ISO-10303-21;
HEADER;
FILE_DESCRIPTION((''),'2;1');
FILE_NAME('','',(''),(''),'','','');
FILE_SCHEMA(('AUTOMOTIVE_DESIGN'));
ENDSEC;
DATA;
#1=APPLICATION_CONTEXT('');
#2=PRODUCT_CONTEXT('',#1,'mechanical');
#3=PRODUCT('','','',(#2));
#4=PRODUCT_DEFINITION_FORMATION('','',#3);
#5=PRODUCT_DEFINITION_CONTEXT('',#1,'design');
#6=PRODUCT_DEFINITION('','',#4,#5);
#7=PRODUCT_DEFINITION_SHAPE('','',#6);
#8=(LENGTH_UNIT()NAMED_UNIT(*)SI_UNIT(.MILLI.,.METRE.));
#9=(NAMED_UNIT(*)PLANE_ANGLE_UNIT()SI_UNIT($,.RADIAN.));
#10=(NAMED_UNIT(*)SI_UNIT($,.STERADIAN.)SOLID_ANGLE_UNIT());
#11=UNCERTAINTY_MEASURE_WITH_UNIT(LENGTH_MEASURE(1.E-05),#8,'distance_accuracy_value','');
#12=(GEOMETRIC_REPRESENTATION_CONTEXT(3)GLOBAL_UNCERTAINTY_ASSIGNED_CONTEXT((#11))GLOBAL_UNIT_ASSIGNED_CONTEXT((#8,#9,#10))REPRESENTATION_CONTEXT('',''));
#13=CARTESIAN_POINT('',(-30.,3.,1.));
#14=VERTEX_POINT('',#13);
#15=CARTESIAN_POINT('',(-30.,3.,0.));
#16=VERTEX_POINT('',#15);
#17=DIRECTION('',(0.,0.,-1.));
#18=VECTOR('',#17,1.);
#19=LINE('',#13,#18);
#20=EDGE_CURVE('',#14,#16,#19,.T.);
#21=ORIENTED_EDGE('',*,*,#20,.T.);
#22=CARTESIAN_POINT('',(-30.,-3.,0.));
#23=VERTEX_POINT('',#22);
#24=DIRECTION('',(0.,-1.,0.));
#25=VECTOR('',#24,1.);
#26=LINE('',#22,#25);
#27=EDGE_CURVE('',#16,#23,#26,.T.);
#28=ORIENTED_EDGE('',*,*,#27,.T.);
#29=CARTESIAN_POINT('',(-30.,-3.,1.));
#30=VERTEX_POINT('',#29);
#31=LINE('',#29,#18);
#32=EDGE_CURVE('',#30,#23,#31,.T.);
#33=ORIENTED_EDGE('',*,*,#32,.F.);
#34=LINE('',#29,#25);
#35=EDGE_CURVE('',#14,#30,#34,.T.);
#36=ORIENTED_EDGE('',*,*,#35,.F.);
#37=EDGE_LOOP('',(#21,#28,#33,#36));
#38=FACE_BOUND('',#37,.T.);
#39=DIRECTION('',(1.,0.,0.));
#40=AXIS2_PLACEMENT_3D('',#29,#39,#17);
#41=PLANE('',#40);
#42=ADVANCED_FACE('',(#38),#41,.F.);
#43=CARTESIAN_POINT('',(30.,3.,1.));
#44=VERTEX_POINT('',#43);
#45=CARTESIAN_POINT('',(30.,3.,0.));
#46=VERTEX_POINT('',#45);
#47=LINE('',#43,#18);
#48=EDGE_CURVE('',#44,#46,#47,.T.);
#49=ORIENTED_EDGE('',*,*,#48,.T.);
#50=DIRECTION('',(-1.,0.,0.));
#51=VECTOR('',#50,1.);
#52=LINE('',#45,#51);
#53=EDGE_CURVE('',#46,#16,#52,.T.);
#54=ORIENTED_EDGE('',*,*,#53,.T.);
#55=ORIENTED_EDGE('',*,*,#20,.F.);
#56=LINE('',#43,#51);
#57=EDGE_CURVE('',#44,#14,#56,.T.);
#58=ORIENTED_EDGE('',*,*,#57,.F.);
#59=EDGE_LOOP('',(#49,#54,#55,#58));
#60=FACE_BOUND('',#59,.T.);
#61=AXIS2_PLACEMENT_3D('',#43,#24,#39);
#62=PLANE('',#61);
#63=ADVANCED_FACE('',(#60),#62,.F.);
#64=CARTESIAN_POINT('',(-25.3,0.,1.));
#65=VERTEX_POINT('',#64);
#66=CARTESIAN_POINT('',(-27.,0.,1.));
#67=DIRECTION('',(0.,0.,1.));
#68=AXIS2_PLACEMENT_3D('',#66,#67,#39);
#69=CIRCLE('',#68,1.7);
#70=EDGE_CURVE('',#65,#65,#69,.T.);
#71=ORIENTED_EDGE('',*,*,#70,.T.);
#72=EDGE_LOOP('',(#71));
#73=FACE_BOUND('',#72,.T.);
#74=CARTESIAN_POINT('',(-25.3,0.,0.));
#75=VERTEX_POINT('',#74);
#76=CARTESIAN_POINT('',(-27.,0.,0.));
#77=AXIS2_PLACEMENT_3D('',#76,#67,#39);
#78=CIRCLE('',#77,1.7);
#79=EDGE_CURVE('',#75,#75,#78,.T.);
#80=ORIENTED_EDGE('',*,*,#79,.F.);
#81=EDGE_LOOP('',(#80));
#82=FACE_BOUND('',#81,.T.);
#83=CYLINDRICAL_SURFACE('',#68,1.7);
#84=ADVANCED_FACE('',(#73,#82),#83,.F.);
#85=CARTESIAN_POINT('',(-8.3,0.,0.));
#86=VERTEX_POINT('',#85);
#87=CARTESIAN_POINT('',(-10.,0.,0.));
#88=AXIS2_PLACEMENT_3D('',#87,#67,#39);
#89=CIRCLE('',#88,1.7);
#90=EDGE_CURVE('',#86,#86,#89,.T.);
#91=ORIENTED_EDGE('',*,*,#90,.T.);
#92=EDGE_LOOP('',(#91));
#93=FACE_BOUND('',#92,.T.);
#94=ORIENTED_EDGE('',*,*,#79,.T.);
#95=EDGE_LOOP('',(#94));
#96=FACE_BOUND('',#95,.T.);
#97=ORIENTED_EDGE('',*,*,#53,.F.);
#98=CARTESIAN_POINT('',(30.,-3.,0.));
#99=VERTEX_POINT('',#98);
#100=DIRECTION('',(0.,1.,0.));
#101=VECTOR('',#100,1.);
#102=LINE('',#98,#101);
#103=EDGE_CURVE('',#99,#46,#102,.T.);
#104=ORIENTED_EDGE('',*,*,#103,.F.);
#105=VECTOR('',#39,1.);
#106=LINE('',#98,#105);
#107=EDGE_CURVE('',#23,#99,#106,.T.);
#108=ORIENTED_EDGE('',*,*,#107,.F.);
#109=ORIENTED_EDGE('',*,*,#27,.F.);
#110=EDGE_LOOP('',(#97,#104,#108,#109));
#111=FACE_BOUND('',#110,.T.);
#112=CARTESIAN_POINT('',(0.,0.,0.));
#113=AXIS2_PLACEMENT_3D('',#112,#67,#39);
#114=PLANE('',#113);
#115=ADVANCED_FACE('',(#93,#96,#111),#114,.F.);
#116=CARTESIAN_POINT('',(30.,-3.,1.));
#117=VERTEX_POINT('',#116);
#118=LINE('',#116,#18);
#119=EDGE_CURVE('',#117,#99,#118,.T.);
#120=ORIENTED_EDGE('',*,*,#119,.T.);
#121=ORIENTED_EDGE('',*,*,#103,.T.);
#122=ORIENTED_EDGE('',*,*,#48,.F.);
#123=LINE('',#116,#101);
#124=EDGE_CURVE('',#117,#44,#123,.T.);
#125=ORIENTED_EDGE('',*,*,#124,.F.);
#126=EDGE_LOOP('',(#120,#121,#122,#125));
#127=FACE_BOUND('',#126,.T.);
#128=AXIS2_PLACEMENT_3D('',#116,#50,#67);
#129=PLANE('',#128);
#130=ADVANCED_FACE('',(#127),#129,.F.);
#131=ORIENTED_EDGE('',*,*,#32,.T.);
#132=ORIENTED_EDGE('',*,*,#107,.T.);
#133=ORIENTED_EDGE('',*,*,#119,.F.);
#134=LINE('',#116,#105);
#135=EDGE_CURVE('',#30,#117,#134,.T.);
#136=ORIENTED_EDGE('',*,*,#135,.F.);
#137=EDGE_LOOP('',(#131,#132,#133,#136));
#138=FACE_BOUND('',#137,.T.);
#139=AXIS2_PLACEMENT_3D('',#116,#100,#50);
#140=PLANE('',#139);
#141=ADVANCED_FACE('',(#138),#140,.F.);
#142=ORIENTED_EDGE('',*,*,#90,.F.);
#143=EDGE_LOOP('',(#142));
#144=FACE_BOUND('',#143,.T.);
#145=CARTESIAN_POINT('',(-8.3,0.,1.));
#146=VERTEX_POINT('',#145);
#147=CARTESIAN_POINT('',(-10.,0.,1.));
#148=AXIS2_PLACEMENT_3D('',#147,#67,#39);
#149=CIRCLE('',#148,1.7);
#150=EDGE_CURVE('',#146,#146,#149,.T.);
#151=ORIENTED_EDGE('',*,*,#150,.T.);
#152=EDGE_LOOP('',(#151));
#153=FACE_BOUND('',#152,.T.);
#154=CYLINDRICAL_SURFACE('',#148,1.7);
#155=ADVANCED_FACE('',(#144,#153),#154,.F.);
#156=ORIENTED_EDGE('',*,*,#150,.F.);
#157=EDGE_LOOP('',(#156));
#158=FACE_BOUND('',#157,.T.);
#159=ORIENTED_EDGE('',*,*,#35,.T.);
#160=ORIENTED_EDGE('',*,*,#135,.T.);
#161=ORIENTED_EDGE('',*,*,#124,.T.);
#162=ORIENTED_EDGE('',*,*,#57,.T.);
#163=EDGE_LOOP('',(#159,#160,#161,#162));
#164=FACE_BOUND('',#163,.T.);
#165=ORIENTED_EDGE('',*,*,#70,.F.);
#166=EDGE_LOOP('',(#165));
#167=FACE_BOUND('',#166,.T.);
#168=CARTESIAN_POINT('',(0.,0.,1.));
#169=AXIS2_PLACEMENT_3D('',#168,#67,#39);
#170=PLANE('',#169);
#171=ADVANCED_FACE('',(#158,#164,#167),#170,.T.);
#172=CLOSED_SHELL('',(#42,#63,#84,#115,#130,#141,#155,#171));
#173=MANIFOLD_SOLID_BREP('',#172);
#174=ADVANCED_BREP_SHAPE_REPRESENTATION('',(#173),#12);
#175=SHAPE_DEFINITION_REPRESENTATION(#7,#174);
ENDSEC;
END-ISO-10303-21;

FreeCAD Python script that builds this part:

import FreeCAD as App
import Part
import Sketcher
from FreeCAD import Vector


def add_polygon(sketch, points):
    """Adds a closed chain of lines whose ends are joined by coincident constraints."""
    first, n = sketch.GeometryCount, len(points)
    for a, b in zip(points, points[1:] + points[:1]):
        sketch.addGeometry(Part.LineSegment(App.Vector(*a, 0), App.Vector(*b, 0)), False)
    for i in range(n):
        sketch.addConstraint(Sketcher.Constraint("Coincident", first + i, 2, first + (i + 1) % n, 1))

doc = App.newDocument("Part")
body = doc.addObject("PartDesign::Body", "Body")

# Sketch on XY plane
sketch1 = body.newObject("Sketcher::SketchObject", "Sketch")
sketch1.AttachmentSupport = (doc.getObject("XY_Plane"), [""])
sketch1.MapMode = "FlatFace"
add_polygon(sketch1, [(-30, 3), (-30, -3), (30, -3), (30, 3)])  # lines 0-3
sketch1.addConstraint(Sketcher.Constraint("Vertical", 0))
sketch1.addConstraint(Sketcher.Constraint("Horizontal", 1))
sketch1.addConstraint(Sketcher.Constraint("Vertical", 2))
sketch1.addConstraint(Sketcher.Constraint("Horizontal", 3))
sketch1.addConstraint(Sketcher.Constraint("Symmetric", 0, 2, 2, 2, -1, 1))
sketch1.addConstraint(Sketcher.Constraint("DistanceX", 1, 1, 1, 2, 60.0))
sketch1.addConstraint(Sketcher.Constraint("DistanceY", 0, 2, 0, 1, 6.0))
pad1 = body.newObject("PartDesign::Pad", "Pad")
pad1.Profile = sketch1
pad1.Length = 1

# Sketch on XY plane
sketch2 = body.newObject("Sketcher::SketchObject", "Sketch001")
sketch2.AttachmentSupport = (doc.getObject("XY_Plane"), [""])
sketch2.MapMode = "FlatFace"
sketch2.AttachmentOffset = App.Placement(Vector(0, 0, 1), App.Rotation())
sketch2.addGeometry(Part.Circle(Vector(-27, 0, 0), Vector(0, 0, 1), 1.7), False)
sketch2.addGeometry(Part.Circle(Vector(-10, 0, 0), Vector(0, 0, 1), 1.7), False)
sketch2.addConstraint(Sketcher.Constraint("Equal", 0, 1))
sketch2.addConstraint(Sketcher.Constraint("PointOnObject", 0, 3, -1))
sketch2.addConstraint(Sketcher.Constraint("PointOnObject", 1, 3, -1))
sketch2.addConstraint(Sketcher.Constraint("Diameter", 0, 3.4))
sketch2.addConstraint(Sketcher.Constraint("DistanceX", 0, 3, -1, 1, 27.0))
sketch2.addConstraint(Sketcher.Constraint("DistanceX", 1, 3, -1, 1, 10.0))
doc.recompute()
hole = body.newObject("PartDesign::Hole", "Hole")
hole.Profile = sketch2
hole.ThreadType = "None"
hole.Diameter = 3.4
hole.DepthType = "ThroughAll"

doc.recompute()
